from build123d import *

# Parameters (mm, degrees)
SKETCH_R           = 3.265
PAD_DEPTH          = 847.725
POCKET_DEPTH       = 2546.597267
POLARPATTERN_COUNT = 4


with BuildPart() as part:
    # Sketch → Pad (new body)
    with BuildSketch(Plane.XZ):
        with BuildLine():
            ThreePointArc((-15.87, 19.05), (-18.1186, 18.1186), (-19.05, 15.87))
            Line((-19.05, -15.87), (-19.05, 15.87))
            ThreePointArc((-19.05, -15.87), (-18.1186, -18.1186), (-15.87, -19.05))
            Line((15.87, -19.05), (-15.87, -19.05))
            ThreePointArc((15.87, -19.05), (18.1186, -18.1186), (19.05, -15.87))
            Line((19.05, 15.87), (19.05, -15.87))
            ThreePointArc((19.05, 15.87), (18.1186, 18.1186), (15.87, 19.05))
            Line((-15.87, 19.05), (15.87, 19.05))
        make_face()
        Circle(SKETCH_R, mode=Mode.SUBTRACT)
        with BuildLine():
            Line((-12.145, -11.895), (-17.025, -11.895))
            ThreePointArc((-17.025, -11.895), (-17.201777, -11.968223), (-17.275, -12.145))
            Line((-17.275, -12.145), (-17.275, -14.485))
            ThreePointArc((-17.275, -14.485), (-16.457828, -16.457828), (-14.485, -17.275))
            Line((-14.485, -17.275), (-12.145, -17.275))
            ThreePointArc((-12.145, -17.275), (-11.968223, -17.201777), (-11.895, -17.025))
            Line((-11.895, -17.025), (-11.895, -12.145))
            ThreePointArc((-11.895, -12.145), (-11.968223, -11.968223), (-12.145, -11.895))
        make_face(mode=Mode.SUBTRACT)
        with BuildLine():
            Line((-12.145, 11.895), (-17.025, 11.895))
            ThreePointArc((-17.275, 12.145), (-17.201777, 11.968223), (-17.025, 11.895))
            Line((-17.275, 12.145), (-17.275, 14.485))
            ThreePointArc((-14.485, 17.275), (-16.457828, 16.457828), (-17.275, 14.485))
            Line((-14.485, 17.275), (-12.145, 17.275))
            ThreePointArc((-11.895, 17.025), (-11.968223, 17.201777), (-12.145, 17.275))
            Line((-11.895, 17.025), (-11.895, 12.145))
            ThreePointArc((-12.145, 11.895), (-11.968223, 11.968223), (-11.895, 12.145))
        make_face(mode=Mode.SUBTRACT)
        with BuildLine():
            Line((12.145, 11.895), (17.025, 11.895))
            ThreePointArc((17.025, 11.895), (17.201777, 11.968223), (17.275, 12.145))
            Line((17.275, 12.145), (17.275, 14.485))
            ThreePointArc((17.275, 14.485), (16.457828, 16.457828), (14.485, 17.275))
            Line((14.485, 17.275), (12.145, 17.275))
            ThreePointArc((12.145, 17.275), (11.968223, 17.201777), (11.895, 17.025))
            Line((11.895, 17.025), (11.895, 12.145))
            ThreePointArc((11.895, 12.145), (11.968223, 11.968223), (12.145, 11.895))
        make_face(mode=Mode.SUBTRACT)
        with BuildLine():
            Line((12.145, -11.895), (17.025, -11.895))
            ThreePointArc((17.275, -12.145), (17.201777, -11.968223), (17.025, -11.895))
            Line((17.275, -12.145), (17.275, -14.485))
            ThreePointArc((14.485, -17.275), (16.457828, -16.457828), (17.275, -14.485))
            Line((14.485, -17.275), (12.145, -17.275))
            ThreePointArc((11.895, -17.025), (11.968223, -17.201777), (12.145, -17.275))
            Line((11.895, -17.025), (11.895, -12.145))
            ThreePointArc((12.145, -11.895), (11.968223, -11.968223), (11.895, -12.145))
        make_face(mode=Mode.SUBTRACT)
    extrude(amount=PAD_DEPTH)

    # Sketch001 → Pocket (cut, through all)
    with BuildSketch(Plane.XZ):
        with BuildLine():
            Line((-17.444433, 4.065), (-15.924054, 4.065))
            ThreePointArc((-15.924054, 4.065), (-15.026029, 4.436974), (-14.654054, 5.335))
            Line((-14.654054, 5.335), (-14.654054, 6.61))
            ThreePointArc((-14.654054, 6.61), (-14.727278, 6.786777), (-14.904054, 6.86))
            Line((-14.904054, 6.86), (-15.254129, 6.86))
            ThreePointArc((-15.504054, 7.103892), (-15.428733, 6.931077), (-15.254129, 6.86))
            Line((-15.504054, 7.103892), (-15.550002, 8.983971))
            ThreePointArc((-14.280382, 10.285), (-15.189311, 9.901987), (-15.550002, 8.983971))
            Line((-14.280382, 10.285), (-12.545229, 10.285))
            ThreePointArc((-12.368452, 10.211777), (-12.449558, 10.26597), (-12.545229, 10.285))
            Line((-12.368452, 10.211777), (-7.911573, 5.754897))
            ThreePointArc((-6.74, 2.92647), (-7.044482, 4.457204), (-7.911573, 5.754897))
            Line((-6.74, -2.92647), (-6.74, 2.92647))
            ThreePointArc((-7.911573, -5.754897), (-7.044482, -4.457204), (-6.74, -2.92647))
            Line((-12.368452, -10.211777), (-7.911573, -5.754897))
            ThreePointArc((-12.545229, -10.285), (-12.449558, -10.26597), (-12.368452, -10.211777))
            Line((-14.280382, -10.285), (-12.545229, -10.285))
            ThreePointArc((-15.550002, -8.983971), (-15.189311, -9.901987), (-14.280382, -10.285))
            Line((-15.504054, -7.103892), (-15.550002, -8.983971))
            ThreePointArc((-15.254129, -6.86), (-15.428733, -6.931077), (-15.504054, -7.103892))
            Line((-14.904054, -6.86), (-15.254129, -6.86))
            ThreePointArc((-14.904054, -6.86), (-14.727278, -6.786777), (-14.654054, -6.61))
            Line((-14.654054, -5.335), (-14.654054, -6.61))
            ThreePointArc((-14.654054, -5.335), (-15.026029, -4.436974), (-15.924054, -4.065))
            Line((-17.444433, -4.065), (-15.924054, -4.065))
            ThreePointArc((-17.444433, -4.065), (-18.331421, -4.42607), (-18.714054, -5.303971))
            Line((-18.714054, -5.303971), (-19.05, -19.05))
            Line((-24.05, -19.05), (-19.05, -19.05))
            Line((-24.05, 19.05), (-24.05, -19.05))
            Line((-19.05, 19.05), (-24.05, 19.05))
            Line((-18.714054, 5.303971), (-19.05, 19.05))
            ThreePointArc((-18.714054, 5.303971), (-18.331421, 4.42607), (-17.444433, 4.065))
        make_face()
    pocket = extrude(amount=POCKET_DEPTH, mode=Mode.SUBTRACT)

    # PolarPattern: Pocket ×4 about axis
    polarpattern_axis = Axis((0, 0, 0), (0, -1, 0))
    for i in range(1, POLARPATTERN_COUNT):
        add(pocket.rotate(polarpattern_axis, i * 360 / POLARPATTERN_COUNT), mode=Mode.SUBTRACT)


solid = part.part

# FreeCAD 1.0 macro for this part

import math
import FreeCAD as App
import Part
import Sketcher
from FreeCAD import Vector
Q = App.Units.Quantity

doc = App.newDocument("Part")
body = doc.addObject("PartDesign::Body", "Body")

# Sketch on XZ plane
sketch1 = body.newObject("Sketcher::SketchObject", "Sketch")
sketch1.AttachmentSupport = (doc.getObject("XZ_Plane"), [""])
sketch1.MapMode = "FlatFace"
sketch1.addGeometry([
    Part.ArcOfCircle(Part.Circle(Vector(-15.87, 15.87, 0), Vector(0, 0, 1), 3.18), math.radians(90), math.radians(180)),  # 0
    Part.LineSegment(Vector(-19.05, 15.87, 0), Vector(-19.05, -15.87, 0)),  # 1
    Part.ArcOfCircle(Part.Circle(Vector(-15.87, -15.87, 0), Vector(0, 0, 1), 3.18), math.radians(180), math.radians(270)),  # 2
    Part.LineSegment(Vector(-15.87, -19.05, 0), Vector(15.87, -19.05, 0)),  # 3
    Part.ArcOfCircle(Part.Circle(Vector(15.87, -15.87, 0), Vector(0, 0, 1), 3.18), math.radians(-90), math.radians(0)),  # 4
    Part.LineSegment(Vector(19.05, -15.87, 0), Vector(19.05, 15.87, 0)),  # 5
    Part.ArcOfCircle(Part.Circle(Vector(15.87, 15.87, 0), Vector(0, 0, 1), 3.18), math.radians(0), math.radians(90)),  # 6
    Part.LineSegment(Vector(15.87, 19.05, 0), Vector(-15.87, 19.05, 0)),  # 7
    Part.LineSegment(Vector(-17.02, -11.89, 0), Vector(-12.14, -11.89, 0)),  # 8
    Part.ArcOfCircle(Part.Circle(Vector(-12.14, -12.14, 0), Vector(0, 0, 1), 0.25), math.radians(0), math.radians(90)),  # 9
    Part.LineSegment(Vector(-11.89, -12.14, 0), Vector(-11.89, -17.02, 0)),  # 10
    Part.ArcOfCircle(Part.Circle(Vector(-12.14, -17.03, 0), Vector(0, 0, 1), 0.25), math.radians(-90), math.radians(0)),  # 11
    Part.LineSegment(Vector(-12.14, -17.27, 0), Vector(-14.48, -17.27, 0)),  # 12
    Part.ArcOfCircle(Part.Circle(Vector(-14.49, -14.49, 0), Vector(0, 0, 1), 2.79), math.radians(180), math.radians(270)),  # 13
    Part.LineSegment(Vector(-17.27, -14.48, 0), Vector(-17.27, -12.14, 0)),  # 14
    Part.ArcOfCircle(Part.Circle(Vector(-17.03, -12.14, 0), Vector(0, 0, 1), 0.25), math.radians(90), math.radians(180)),  # 15
    Part.ArcOfCircle(Part.Circle(Vector(12.14, -12.14, 0), Vector(0, 0, 1), 0.25), math.radians(90), math.radians(180)),  # 16
    Part.LineSegment(Vector(12.14, -11.89, 0), Vector(17.02, -11.89, 0)),  # 17
    Part.ArcOfCircle(Part.Circle(Vector(17.03, -12.14, 0), Vector(0, 0, 1), 0.25), math.radians(0), math.radians(90)),  # 18
    Part.LineSegment(Vector(17.27, -12.14, 0), Vector(17.27, -14.48, 0)),  # 19
    Part.ArcOfCircle(Part.Circle(Vector(14.49, -14.49, 0), Vector(0, 0, 1), 2.79), math.radians(-90), math.radians(0)),  # 20
    Part.LineSegment(Vector(14.48, -17.27, 0), Vector(12.14, -17.27, 0)),  # 21
    Part.ArcOfCircle(Part.Circle(Vector(12.14, -17.03, 0), Vector(0, 0, 1), 0.25), math.radians(180), math.radians(270)),  # 22
    Part.LineSegment(Vector(11.89, -17.02, 0), Vector(11.89, -12.14, 0)),  # 23
    Part.ArcOfCircle(Part.Circle(Vector(-12.14, 12.14, 0), Vector(0, 0, 1), 0.25), math.radians(-90), math.radians(0)),  # 24
    Part.LineSegment(Vector(-12.14, 11.89, 0), Vector(-17.02, 11.89, 0)),  # 25
    Part.ArcOfCircle(Part.Circle(Vector(-17.03, 12.14, 0), Vector(0, 0, 1), 0.25), math.radians(180), math.radians(270)),  # 26
    Part.LineSegment(Vector(-17.27, 12.14, 0), Vector(-17.27, 14.48, 0)),  # 27
    Part.ArcOfCircle(Part.Circle(Vector(-14.49, 14.49, 0), Vector(0, 0, 1), 2.79), math.radians(90), math.radians(180)),  # 28
    Part.LineSegment(Vector(-14.48, 17.27, 0), Vector(-12.14, 17.27, 0)),  # 29
    Part.ArcOfCircle(Part.Circle(Vector(-12.14, 17.03, 0), Vector(0, 0, 1), 0.25), math.radians(0), math.radians(90)),  # 30
    Part.LineSegment(Vector(-11.89, 17.02, 0), Vector(-11.89, 12.14, 0)),  # 31
    Part.Circle(Vector(0, 0, 0), Vector(0, 0, 1), 3.27),  # 32
    Part.LineSegment(Vector(17.02, 11.89, 0), Vector(12.14, 11.89, 0)),  # 33
    Part.ArcOfCircle(Part.Circle(Vector(12.14, 12.14, 0), Vector(0, 0, 1), 0.25), math.radians(180), math.radians(270)),  # 34
    Part.LineSegment(Vector(11.89, 12.14, 0), Vector(11.89, 17.02, 0)),  # 35
    Part.ArcOfCircle(Part.Circle(Vector(12.14, 17.03, 0), Vector(0, 0, 1), 0.25), math.radians(90), math.radians(180)),  # 36
    Part.LineSegment(Vector(12.14, 17.27, 0), Vector(14.48, 17.27, 0)),  # 37
    Part.ArcOfCircle(Part.Circle(Vector(14.49, 14.49, 0), Vector(0, 0, 1), 2.79), math.radians(0), math.radians(90)),  # 38
    Part.LineSegment(Vector(17.27, 14.48, 0), Vector(17.27, 12.14, 0)),  # 39
    Part.ArcOfCircle(Part.Circle(Vector(17.03, 12.14, 0), Vector(0, 0, 1), 0.25), math.radians(-90), math.radians(0)),  # 40
], False)
sketch1.addConstraint([
    Sketcher.Constraint("Tangent", 0, 2, 1, 1),
    Sketcher.Constraint("Tangent", 1, 2, 2, 1),
    Sketcher.Constraint("Tangent", 2, 2, 3, 1),
    Sketcher.Constraint("Tangent", 3, 2, 4, 1),
    Sketcher.Constraint("Tangent", 4, 2, 5, 1),
    Sketcher.Constraint("Tangent", 5, 2, 6, 1),
    Sketcher.Constraint("Tangent", 6, 2, 7, 1),
    Sketcher.Constraint("Tangent", 7, 2, 0, 1),
    Sketcher.Constraint("Coincident", 8, 2, 9, 2),
    Sketcher.Constraint("Coincident", 9, 1, 10, 1),
    Sketcher.Constraint("Coincident", 10, 2, 11, 2),
    Sketcher.Constraint("Coincident", 11, 1, 12, 1),
    Sketcher.Constraint("Tangent", 12, 2, 13, 2),
    Sketcher.Constraint("Tangent", 13, 1, 14, 1),
    Sketcher.Constraint("Coincident", 14, 2, 15, 2),
    Sketcher.Constraint("Coincident", 15, 1, 8, 1),
    Sketcher.Constraint("Coincident", 16, 1, 17, 1),
    Sketcher.Constraint("Coincident", 17, 2, 18, 2),
    Sketcher.Constraint("Coincident", 18, 1, 19, 1),
    Sketcher.Constraint("Tangent", 19, 2, 20, 2),
    Sketcher.Constraint("Tangent", 20, 1, 21, 1),
    Sketcher.Constraint("Coincident", 21, 2, 22, 2),
    Sketcher.Constraint("Coincident", 22, 1, 23, 1),
    Sketcher.Constraint("Coincident", 23, 2, 16, 2),
    Sketcher.Constraint("Coincident", 24, 1, 25, 1),
    Sketcher.Constraint("Coincident", 25, 2, 26, 2),
    Sketcher.Constraint("Coincident", 26, 1, 27, 1),
    Sketcher.Constraint("Tangent", 27, 2, 28, 2),
    Sketcher.Constraint("Tangent", 28, 1, 29, 1),
    Sketcher.Constraint("Coincident", 29, 2, 30, 2),
    Sketcher.Constraint("Coincident", 30, 1, 31, 1),
    Sketcher.Constraint("Coincident", 31, 2, 24, 2),
    Sketcher.Constraint("Coincident", 33, 2, 34, 2),
    Sketcher.Constraint("Coincident", 34, 1, 35, 1),
    Sketcher.Constraint("Coincident", 35, 2, 36, 2),
    Sketcher.Constraint("Coincident", 36, 1, 37, 1),
    Sketcher.Constraint("Tangent", 37, 2, 38, 2),
    Sketcher.Constraint("Tangent", 38, 1, 39, 1),
    Sketcher.Constraint("Coincident", 39, 2, 40, 2),
    Sketcher.Constraint("Coincident", 40, 1, 33, 1),
    Sketcher.Constraint("Vertical", 1),
    Sketcher.Constraint("Horizontal", 3),
    Sketcher.Constraint("Vertical", 5),
    Sketcher.Constraint("Horizontal", 7),
    Sketcher.Constraint("Horizontal", 8),
    Sketcher.Constraint("Vertical", 10),
    Sketcher.Constraint("Horizontal", 12),
    Sketcher.Constraint("Vertical", 14),
    Sketcher.Constraint("Horizontal", 17),
    Sketcher.Constraint("Vertical", 19),
    Sketcher.Constraint("Horizontal", 21),
    Sketcher.Constraint("Vertical", 23),
    Sketcher.Constraint("Horizontal", 25),
    Sketcher.Constraint("Vertical", 27),
    Sketcher.Constraint("Horizontal", 29),
    Sketcher.Constraint("Vertical", 31),
    Sketcher.Constraint("Horizontal", 33),
    Sketcher.Constraint("Vertical", 35),
    Sketcher.Constraint("Horizontal", 37),
    Sketcher.Constraint("Vertical", 39),
    Sketcher.Constraint("Coincident", 32, 3, -1, 1),
    Sketcher.Constraint("Equal", 0, 2),
    Sketcher.Constraint("Equal", 2, 4),
    Sketcher.Constraint("Equal", 4, 6),
    Sketcher.Constraint("Equal", 9, 11),
    Sketcher.Constraint("Equal", 11, 15),
    Sketcher.Constraint("Equal", 15, 16),
    Sketcher.Constraint("Equal", 16, 18),
    Sketcher.Constraint("Equal", 13, 20),
    Sketcher.Constraint("Equal", 18, 22),
    Sketcher.Constraint("Equal", 22, 24),
    Sketcher.Constraint("Equal", 24, 26),
    Sketcher.Constraint("Equal", 20, 28),
    Sketcher.Constraint("Equal", 26, 30),
    Sketcher.Constraint("Equal", 30, 34),
    Sketcher.Constraint("Equal", 34, 36),
    Sketcher.Constraint("Equal", 28, 38),
    Sketcher.Constraint("Equal", 36, 40),
    Sketcher.Constraint("Symmetric", 0, 3, 4, 3, -1, 1),
    Sketcher.Constraint("Symmetric", 16, 3, 24, 3, -1, 1),
    Sketcher.Constraint("Symmetric", 20, 3, 28, 3, -1, 1),
    Sketcher.Constraint("Symmetric", 9, 3, 34, 3, -1, 1),
    Sketcher.Constraint("Symmetric", 13, 3, 38, 3, -1, 1),
    Sketcher.Constraint("Symmetric", 9, 3, 16, 3, -2),
    Sketcher.Constraint("Symmetric", 13, 3, 20, 3, -2),
    Sketcher.Constraint("Horizontal", 18, 3, 9, 1),
    Sketcher.Constraint("Horizontal", 22, 3, 10, 2),
    Sketcher.Constraint("Horizontal", 9, 1, 14, 2),
    Sketcher.Constraint("Horizontal", 14, 2, 18, 1),
    Sketcher.Constraint("Horizontal", 10, 2, 22, 1),
    Sketcher.Constraint("Horizontal", 18, 1, 23, 2),
    Sketcher.Constraint("Horizontal", 40, 3, 26, 1),
    Sketcher.Constraint("Horizontal", 36, 3, 30, 1),
    Sketcher.Constraint("Horizontal", 26, 1, 31, 2),
    Sketcher.Constraint("Horizontal", 31, 2, 34, 1),
    Sketcher.Constraint("Horizontal", 30, 1, 35, 2),
    Sketcher.Constraint("Horizontal", 34, 1, 39, 2),
    Sketcher.Constraint("Vertical", 30, 3, 8, 2),
    Sketcher.Constraint("Vertical", 8, 2, 11, 1),
    Sketcher.Constraint("Vertical", 26, 3, 15, 1),
    Sketcher.Constraint("Vertical", 36, 3, 16, 1),
    Sketcher.Constraint("Vertical", 40, 3, 17, 2),
    Sketcher.Constraint("Vertical", 16, 1, 21, 2),
    Sketcher.Constraint("Vertical", 11, 1, 24, 1),
    Sketcher.Constraint("Vertical", 15, 1, 25, 2),
    Sketcher.Constraint("Vertical", 24, 1, 29, 2),
    Sketcher.Constraint("Vertical", 21, 2, 33, 2),
    Sketcher.Constraint("Vertical", 33, 2, 36, 1),
    Sketcher.Constraint("Vertical", 17, 2, 40, 1),
    Sketcher.Constraint("Equal", 7, 1),
    Sketcher.Constraint("Equal", 33, 10),
    Sketcher.Constraint("Diameter", 32, Q("6.53 mm")),
    Sketcher.Constraint("Radius", 0, Q("3.179999 mm")),
    Sketcher.Constraint("Radius", 9, Q("0.249999 mm")),
    Sketcher.Constraint("Radius", 13, Q("2.79 mm")),
    Sketcher.Constraint("DistanceX", 3, 1, 3, 2, Q("31.74 mm")),
    Sketcher.Constraint("DistanceX", 8, 1, 8, 2, Q("4.88 mm")),
    Sketcher.Constraint("DistanceX", 9, 3, -1, 1, Q("12.144999 mm")),
    Sketcher.Constraint("DistanceY", 9, 3, -1, 1, Q("12.144999 mm")),
])
pad1 = body.newObject("PartDesign::Pad", "Pad")
pad1.Profile = sketch1
pad1.Length = 847.725

# Sketch on XZ plane
sketch2 = body.newObject("Sketcher::SketchObject", "Sketch001")
sketch2.AttachmentSupport = (doc.getObject("XZ_Plane"), [""])
sketch2.MapMode = "FlatFace"
sketch2.addGeometry([
    Part.LineSegment(Vector(-15.924054, 4.065, 0), Vector(-17.444433, 4.065, 0)),  # 0
    Part.ArcOfCircle(Part.Circle(Vector(-17.444434, 5.334999, 0), Vector(0, 0, 1), 1.269999), math.radians(-178.600049), math.radians(-89.99994)),  # 1
    Part.LineSegment(Vector(-18.714054, 5.303971, 0), Vector(-19.05, 19.05, 0)),  # 2
    Part.LineSegment(Vector(-19.05, 19.05, 0), Vector(-24.05, 19.05, 0)),  # 3
    Part.LineSegment(Vector(-24.05, 19.05, 0), Vector(-24.05, -19.05, 0)),  # 4
    Part.LineSegment(Vector(-24.05, -19.05, 0), Vector(-19.05, -19.05, 0)),  # 5
    Part.LineSegment(Vector(-19.05, -19.05, 0), Vector(-18.714054, -5.303971, 0)),  # 6
    Part.ArcOfCircle(Part.Circle(Vector(-17.444434, -5.334999, 0), Vector(0, 0, 1), 1.269999), math.radians(89.99994), math.radians(178.600049)),  # 7
    Part.LineSegment(Vector(-17.444433, -4.065, 0), Vector(-15.924054, -4.065, 0)),  # 8
    Part.ArcOfCircle(Part.Circle(Vector(-15.924054, -5.335, 0), Vector(0, 0, 1), 1.27), math.radians(0.000017), math.radians(89.999983)),  # 9
    Part.LineSegment(Vector(-14.654054, -5.335, 0), Vector(-14.654054, -6.61, 0)),  # 10
    Part.ArcOfCircle(Part.Circle(Vector(-14.904055, -6.609999, 0), Vector(0, 0, 1), 0.250001), math.radians(-89.999847), math.radians(-0.000153)),  # 11
    Part.LineSegment(Vector(-14.904054, -6.86, 0), Vector(-15.254129, -6.86, 0)),  # 12
    Part.ArcOfCircle(Part.Circle(Vector(-15.254129, -7.109999, 0), Vector(0, 0, 1), 0.249999), math.radians(89.999942), math.radians(178.600153)),  # 13
    Part.LineSegment(Vector(-15.504054, -7.103892, 0), Vector(-15.550002, -8.983971, 0)),  # 14
    Part.ArcOfCircle(Part.Circle(Vector(-14.280381, -9.015, 0), Vector(0, 0, 1), 1.27), math.radians(178.600016), math.radians(269.999938)),  # 15
    Part.LineSegment(Vector(-14.280382, -10.285, 0), Vector(-12.545229, -10.285, 0)),  # 16
    Part.ArcOfCircle(Part.Circle(Vector(-12.545229, -10.034999, 0), Vector(0, 0, 1), 0.250001), math.radians(-90.000058), math.radians(-45.000181)),  # 17
    Part.LineSegment(Vector(-12.368452, -10.211777, 0), Vector(-7.911573, -5.754897, 0)),  # 18
    Part.ArcOfCircle(Part.Circle(Vector(-10.739999, -2.92647, 0), Vector(0, 0, 1), 3.999999), math.radians(-45.000008), math.radians(0.000002)),  # 19
    Part.LineSegment(Vector(-6.74, -2.92647, 0), Vector(-6.74, 2.92647, 0)),  # 20
    Part.ArcOfCircle(Part.Circle(Vector(-10.739999, 2.92647, 0), Vector(0, 0, 1), 3.999999), math.radians(-0.000002), math.radians(45.000008)),  # 21
    Part.LineSegment(Vector(-7.911573, 5.754897, 0), Vector(-12.368452, 10.211777, 0)),  # 22
    Part.ArcOfCircle(Part.Circle(Vector(-12.545229, 10.034999, 0), Vector(0, 0, 1), 0.250001), math.radians(45.000181), math.radians(90.000058)),  # 23
    Part.LineSegment(Vector(-12.545229, 10.285, 0), Vector(-14.280382, 10.285, 0)),  # 24
    Part.ArcOfCircle(Part.Circle(Vector(-14.280381, 9.015, 0), Vector(0, 0, 1), 1.27), math.radians(90.000062), math.radians(181.399984)),  # 25
    Part.LineSegment(Vector(-15.550002, 8.983971, 0), Vector(-15.504054, 7.103892, 0)),  # 26
    Part.ArcOfCircle(Part.Circle(Vector(-15.254129, 7.109999, 0), Vector(0, 0, 1), 0.249999), math.radians(-178.600153), math.radians(-89.999942)),  # 27
    Part.LineSegment(Vector(-15.254129, 6.86, 0), Vector(-14.904054, 6.86, 0)),  # 28
    Part.ArcOfCircle(Part.Circle(Vector(-14.904055, 6.609999, 0), Vector(0, 0, 1), 0.250001), math.radians(0.000153), math.radians(89.999847)),  # 29
    Part.LineSegment(Vector(-14.654054, 6.61, 0), Vector(-14.654054, 5.335, 0)),  # 30
    Part.ArcOfCircle(Part.Circle(Vector(-15.924054, 5.335, 0), Vector(0, 0, 1), 1.27), math.radians(-89.999983), math.radians(-0.000017)),  # 31
], False)
sketch2.addConstraint([
    Sketcher.Constraint("Coincident", 0, 2, 1, 2),
    Sketcher.Constraint("Coincident", 1, 1, 2, 1),
    Sketcher.Constraint("Coincident", 2, 2, 3, 1),
    Sketcher.Constraint("Coincident", 3, 2, 4, 1),
    Sketcher.Constraint("Coincident", 4, 2, 5, 1),
    Sketcher.Constraint("Coincident", 5, 2, 6, 1),
    Sketcher.Constraint("Coincident", 6, 2, 7, 2),
    Sketcher.Constraint("Coincident", 7, 1, 8, 1),
    Sketcher.Constraint("Coincident", 8, 2, 9, 2),
    Sketcher.Constraint("Coincident", 9, 1, 10, 1),
    Sketcher.Constraint("Coincident", 10, 2, 11, 2),
    Sketcher.Constraint("Coincident", 11, 1, 12, 1),
    Sketcher.Constraint("Coincident", 12, 2, 13, 1),
    Sketcher.Constraint("Coincident", 13, 2, 14, 1),
    Sketcher.Constraint("Coincident", 14, 2, 15, 1),
    Sketcher.Constraint("Coincident", 15, 2, 16, 1),
    Sketcher.Constraint("Coincident", 16, 2, 17, 1),
    Sketcher.Constraint("Coincident", 17, 2, 18, 1),
    Sketcher.Constraint("Coincident", 18, 2, 19, 1),
    Sketcher.Constraint("Coincident", 19, 2, 20, 1),
    Sketcher.Constraint("Coincident", 20, 2, 21, 1),
    Sketcher.Constraint("Coincident", 21, 2, 22, 1),
    Sketcher.Constraint("Coincident", 22, 2, 23, 1),
    Sketcher.Constraint("Coincident", 23, 2, 24, 1),
    Sketcher.Constraint("Coincident", 24, 2, 25, 1),
    Sketcher.Constraint("Coincident", 25, 2, 26, 1),
    Sketcher.Constraint("Coincident", 26, 2, 27, 1),
    Sketcher.Constraint("Coincident", 27, 2, 28, 1),
    Sketcher.Constraint("Coincident", 28, 2, 29, 2),
    Sketcher.Constraint("Coincident", 29, 1, 30, 1),
    Sketcher.Constraint("Coincident", 30, 2, 31, 2),
    Sketcher.Constraint("Coincident", 31, 1, 0, 1),
    Sketcher.Constraint("Horizontal", 0),
    Sketcher.Constraint("Horizontal", 3),
    Sketcher.Constraint("Vertical", 4),
    Sketcher.Constraint("Horizontal", 5),
    Sketcher.Constraint("Horizontal", 8),
    Sketcher.Constraint("Vertical", 10),
    Sketcher.Constraint("Horizontal", 12),
    Sketcher.Constraint("Horizontal", 16),
    Sketcher.Constraint("Vertical", 20),
    Sketcher.Constraint("Horizontal", 24),
    Sketcher.Constraint("Horizontal", 28),
    Sketcher.Constraint("Vertical", 30),
    Sketcher.Constraint("Radius", 19, Q("3.999999 mm")),
    Sketcher.Constraint("Radius", 21, Q("3.999999 mm")),
    Sketcher.Constraint("DistanceX", 3, 2, 3, 1, Q("5 mm")),
    Sketcher.Constraint("DistanceX", 5, 1, 5, 2, Q("5 mm")),
    Sketcher.Constraint("Radius", 1, Q("1.269999 mm")),
    Sketcher.Constraint("Radius", 7, Q("1.269999 mm")),
    Sketcher.Constraint("Radius", 9, Q("1.27 mm")),
    Sketcher.Constraint("Radius", 11, Q("0.250001 mm")),
    Sketcher.Constraint("Radius", 13, Q("0.249999 mm")),
    Sketcher.Constraint("Radius", 15, Q("1.27 mm")),
    Sketcher.Constraint("Radius", 17, Q("0.250001 mm")),
    Sketcher.Constraint("Radius", 23, Q("0.250001 mm")),
    Sketcher.Constraint("Radius", 25, Q("1.27 mm")),
    Sketcher.Constraint("Radius", 27, Q("0.249999 mm")),
    Sketcher.Constraint("Radius", 29, Q("0.250001 mm")),
    Sketcher.Constraint("Radius", 31, Q("1.27 mm")),
    Sketcher.Constraint("DistanceY", 4, 2, 4, 1, Q("38.1 mm")),
    Sketcher.Constraint("DistanceY", 17, 3, 9, 3, Q("4.699999 mm")),
    Sketcher.Constraint("DistanceY", 1, 3, 23, 3, Q("4.7 mm")),
    Sketcher.Constraint("DistanceY", 13, 3, 10, 2, Q("0.499999 mm")),
    Sketcher.Constraint("DistanceX", 13, 2, 11, 1, Q("0.6 mm")),
    Sketcher.Constraint("DistanceX", 13, 2, 11, 3, Q("0.599999 mm")),
    Sketcher.Constraint("DistanceX", 26, 2, 29, 3, Q("0.599999 mm")),
    Sketcher.Constraint("DistanceX", 26, 2, 28, 2, Q("0.6 mm")),
    Sketcher.Constraint("DistanceY", 29, 1, 27, 3, Q("0.499999 mm")),
    Sketcher.Constraint("DistanceY", 10, 2, 10, 1, Q("1.275 mm")),
    Sketcher.Constraint("DistanceY", 30, 2, 30, 1, Q("1.275 mm")),
    Sketcher.Constraint("DistanceY", 11, 3, -1, 1, Q("6.609999 mm")),
    Sketcher.Constraint("DistanceX", 19, 3, -1, 1, Q("10.739999 mm")),
    Sketcher.Constraint("DistanceY", -1, 1, 27, 3, Q("7.109999 mm")),
    Sketcher.Constraint("DistanceX", 2, 2, -1, 1, Q("19.05 mm")),
    Sketcher.Constraint("DistanceY", -1, 1, 2, 2, Q("19.05 mm")),
    Sketcher.Constraint("DistanceX", 14, 2, -1, 1, Q("15.550002 mm")),
    Sketcher.Constraint("DistanceX", 25, 2, -1, 1, Q("15.550002 mm")),
    Sketcher.Constraint("DistanceY", 9, 3, 1, 3, Q("10.669999 mm")),
    Sketcher.Constraint("DistanceX", 1, 1, 31, 3, Q("2.79 mm")),
    Sketcher.Constraint("DistanceX", 6, 2, 9, 3, Q("2.79 mm")),
    Sketcher.Constraint("DistanceX", 8, 2, 11, 3, Q("1.019999 mm")),
    Sketcher.Constraint("DistanceY", 9, 1, 8, 2, Q("1.27 mm")),
    Sketcher.Constraint("DistanceX", 31, 1, 30, 2, Q("1.27 mm")),
    Sketcher.Constraint("DistanceX", 0, 2, 0, 1, Q("1.520379 mm")),
    Sketcher.Constraint("DistanceX", 8, 1, 8, 2, Q("1.520379 mm")),
    Sketcher.Constraint("DistanceY", 20, 1, 20, 2, Q("5.85294 mm")),
    Sketcher.Constraint("DistanceX", 13, 3, 17, 3, Q("2.708901 mm")),
    Sketcher.Constraint("DistanceX", 27, 3, 23, 3, Q("2.708901 mm")),
    Sketcher.Constraint("DistanceX", 27, 3, 23, 2, Q("2.7089 mm")),
    Sketcher.Constraint("Distance", 14, Q("1.88064 mm")),
    Sketcher.Constraint("Distance", 18, Q("6.302979 mm")),
    Sketcher.Constraint("Distance", 22, Q("6.302979 mm")),
    Sketcher.Constraint("Distance", 26, Q("1.88064 mm")),
    Sketcher.Constraint("DistanceX", 12, 2, 12, 1, Q("0.350075 mm")),
    Sketcher.Constraint("DistanceX", 16, 1, 16, 2, Q("1.735153 mm")),
    Sketcher.Constraint("DistanceX", 24, 2, 24, 1, Q("1.735153 mm")),
    Sketcher.Constraint("DistanceX", 28, 1, 28, 2, Q("0.350075 mm")),
    Sketcher.Constraint("DistanceX", 13, 3, -1, 1, Q("15.254129 mm")),
    Sketcher.Constraint("DistanceX", 15, 3, -1, 1, Q("14.280381 mm")),
    Sketcher.Constraint("DistanceY", 19, 3, -1, 1, Q("2.92647 mm")),
    Sketcher.Constraint("DistanceY", -1, 1, 21, 3, Q("2.92647 mm")),
    Sketcher.Constraint("DistanceX", 23, 3, -1, 1, Q("12.545229 mm")),
    Sketcher.Constraint("DistanceX", 25, 3, -1, 1, Q("14.280381 mm")),
    Sketcher.Constraint("DistanceY", -1, 1, 1, 1, Q("5.303971 mm")),
    Sketcher.Constraint("DistanceY", 6, 2, -1, 1, Q("5.303971 mm")),
    Sketcher.Constraint("DistanceX", 16, 2, -1, 1, Q("12.545229 mm")),
    Sketcher.Constraint("DistanceX", 17, 2, -1, 1, Q("12.368452 mm")),
    Sketcher.Constraint("DistanceY", 19, 2, -1, 1, Q("2.92647 mm")),
    Sketcher.Constraint("DistanceX", 29, 3, 21, 2, Q("6.992482 mm")),
])
pocket1 = body.newObject("PartDesign::Pocket", "Pocket")
pocket1.Profile = sketch2
pocket1.Type = "ThroughAll"
pocket1.Reversed = True
doc.recompute()

polarpattern = body.newObject("PartDesign::PolarPattern", "PolarPattern")
polarpattern.Originals = [pocket1]
polarpattern.Axis = (doc.getObject("Y_Axis"), [""])
polarpattern.Angle = 360
polarpattern.Occurrences = 4
body.Tip = polarpattern

doc.recompute()
